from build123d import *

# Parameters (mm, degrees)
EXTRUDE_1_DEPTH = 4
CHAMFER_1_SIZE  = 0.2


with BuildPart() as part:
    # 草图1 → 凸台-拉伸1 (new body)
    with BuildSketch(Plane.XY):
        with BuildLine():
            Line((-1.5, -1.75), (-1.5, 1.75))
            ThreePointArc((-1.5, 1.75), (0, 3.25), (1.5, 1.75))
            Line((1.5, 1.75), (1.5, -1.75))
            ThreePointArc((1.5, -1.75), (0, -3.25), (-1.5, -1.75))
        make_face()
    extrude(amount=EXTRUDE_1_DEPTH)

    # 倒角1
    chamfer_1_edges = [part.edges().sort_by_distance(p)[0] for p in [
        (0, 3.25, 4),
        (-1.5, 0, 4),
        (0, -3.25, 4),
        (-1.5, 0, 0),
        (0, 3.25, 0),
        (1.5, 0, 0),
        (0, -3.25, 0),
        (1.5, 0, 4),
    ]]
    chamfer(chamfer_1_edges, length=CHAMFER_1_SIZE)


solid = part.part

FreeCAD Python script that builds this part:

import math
import FreeCAD as App
import Part
import Sketcher

V = App.Vector
Q = App.Units.Quantity


def edges_at(feature, points):
    """Names of the edges that pass closest to the given points."""
    edges = feature.Shape.Edges
    near = lambda p: min(range(len(edges)), key=lambda i: edges[i].distToShape(Part.Vertex(*p))[0])
    return sorted({f"Edge{near(p) + 1}" for p in points})

doc = App.newDocument("Part")
params = doc.addObject("Spreadsheet::Sheet", "Params")
for row, (alias, value) in enumerate([
    ("sketch1_radius", "1.5 mm"),
    ("sketch1_height", "3.5 mm"),
    ("pad1_length", "4 mm"),
    ("chamfer_size", "0.2 mm"),
], start=1):
    params.set(f"A{row}", alias)
    params.set(f"B{row}", "=" + value)
    params.setAlias(f"B{row}", alias)

body = doc.addObject("PartDesign::Body", "Body")

sketch1 = body.newObject("Sketcher::SketchObject", "Sketch")
sketch1.AttachmentSupport = (doc.getObject("XY_Plane"), [""])
sketch1.MapMode = "FlatFace"
sketch1.addGeometry([
    Part.LineSegment(V(-1.5, 1.8, 0), V(-1.5, -1.8, 0)),
    Part.ArcOfCircle(Part.Circle(V(0, -1.8, 0), V(0, 0, 1), 1.5), math.radians(180), math.radians(360)),
    Part.LineSegment(V(1.5, -1.8, 0), V(1.5, 1.8, 0)),
    Part.ArcOfCircle(Part.Circle(V(0, 1.8, 0), V(0, 0, 1), 1.5), math.radians(0), math.radians(180)),
], False)
sketch1.addConstraint([
    Sketcher.Constraint("Tangent", 0, 2, 1, 1),
    Sketcher.Constraint("Tangent", 1, 2, 2, 1),
    Sketcher.Constraint("Tangent", 2, 2, 3, 1),
    Sketcher.Constraint("Tangent", 3, 2, 0, 1),
    Sketcher.Constraint("Vertical", 0),
    Sketcher.Constraint("Vertical", 2),
    Sketcher.Constraint("Symmetric", 1, 3, 3, 3, -1, 1),
    Sketcher.Constraint("Radius", 1, Q("1.5 mm")),
    Sketcher.Constraint("DistanceY", 0, 2, 0, 1, Q("3.5 mm")),
])
sketch1.setExpression("Constraints[7]", "Params.sketch1_radius")
sketch1.setExpression("Constraints[8]", "Params.sketch1_height")
pad1 = body.newObject("PartDesign::Pad", "Pad")
pad1.Profile = sketch1
pad1.setExpression("Length", "Params.pad1_length")
doc.recompute()

chamfer = body.newObject("PartDesign::Chamfer", "Chamfer")
chamfer.Base = (pad1, edges_at(pad1, [
    (0, 3.25, 4),
    (-1.5, 0, 4),
    (0, -3.25, 4),
    (-1.5, 0, 0),
    (0, 3.25, 0),
    (1.5, 0, 0),
    (0, -3.25, 0),
    (1.5, 0, 4),
]))
chamfer.setExpression("Size", "Params.chamfer_size")

doc.recompute()
